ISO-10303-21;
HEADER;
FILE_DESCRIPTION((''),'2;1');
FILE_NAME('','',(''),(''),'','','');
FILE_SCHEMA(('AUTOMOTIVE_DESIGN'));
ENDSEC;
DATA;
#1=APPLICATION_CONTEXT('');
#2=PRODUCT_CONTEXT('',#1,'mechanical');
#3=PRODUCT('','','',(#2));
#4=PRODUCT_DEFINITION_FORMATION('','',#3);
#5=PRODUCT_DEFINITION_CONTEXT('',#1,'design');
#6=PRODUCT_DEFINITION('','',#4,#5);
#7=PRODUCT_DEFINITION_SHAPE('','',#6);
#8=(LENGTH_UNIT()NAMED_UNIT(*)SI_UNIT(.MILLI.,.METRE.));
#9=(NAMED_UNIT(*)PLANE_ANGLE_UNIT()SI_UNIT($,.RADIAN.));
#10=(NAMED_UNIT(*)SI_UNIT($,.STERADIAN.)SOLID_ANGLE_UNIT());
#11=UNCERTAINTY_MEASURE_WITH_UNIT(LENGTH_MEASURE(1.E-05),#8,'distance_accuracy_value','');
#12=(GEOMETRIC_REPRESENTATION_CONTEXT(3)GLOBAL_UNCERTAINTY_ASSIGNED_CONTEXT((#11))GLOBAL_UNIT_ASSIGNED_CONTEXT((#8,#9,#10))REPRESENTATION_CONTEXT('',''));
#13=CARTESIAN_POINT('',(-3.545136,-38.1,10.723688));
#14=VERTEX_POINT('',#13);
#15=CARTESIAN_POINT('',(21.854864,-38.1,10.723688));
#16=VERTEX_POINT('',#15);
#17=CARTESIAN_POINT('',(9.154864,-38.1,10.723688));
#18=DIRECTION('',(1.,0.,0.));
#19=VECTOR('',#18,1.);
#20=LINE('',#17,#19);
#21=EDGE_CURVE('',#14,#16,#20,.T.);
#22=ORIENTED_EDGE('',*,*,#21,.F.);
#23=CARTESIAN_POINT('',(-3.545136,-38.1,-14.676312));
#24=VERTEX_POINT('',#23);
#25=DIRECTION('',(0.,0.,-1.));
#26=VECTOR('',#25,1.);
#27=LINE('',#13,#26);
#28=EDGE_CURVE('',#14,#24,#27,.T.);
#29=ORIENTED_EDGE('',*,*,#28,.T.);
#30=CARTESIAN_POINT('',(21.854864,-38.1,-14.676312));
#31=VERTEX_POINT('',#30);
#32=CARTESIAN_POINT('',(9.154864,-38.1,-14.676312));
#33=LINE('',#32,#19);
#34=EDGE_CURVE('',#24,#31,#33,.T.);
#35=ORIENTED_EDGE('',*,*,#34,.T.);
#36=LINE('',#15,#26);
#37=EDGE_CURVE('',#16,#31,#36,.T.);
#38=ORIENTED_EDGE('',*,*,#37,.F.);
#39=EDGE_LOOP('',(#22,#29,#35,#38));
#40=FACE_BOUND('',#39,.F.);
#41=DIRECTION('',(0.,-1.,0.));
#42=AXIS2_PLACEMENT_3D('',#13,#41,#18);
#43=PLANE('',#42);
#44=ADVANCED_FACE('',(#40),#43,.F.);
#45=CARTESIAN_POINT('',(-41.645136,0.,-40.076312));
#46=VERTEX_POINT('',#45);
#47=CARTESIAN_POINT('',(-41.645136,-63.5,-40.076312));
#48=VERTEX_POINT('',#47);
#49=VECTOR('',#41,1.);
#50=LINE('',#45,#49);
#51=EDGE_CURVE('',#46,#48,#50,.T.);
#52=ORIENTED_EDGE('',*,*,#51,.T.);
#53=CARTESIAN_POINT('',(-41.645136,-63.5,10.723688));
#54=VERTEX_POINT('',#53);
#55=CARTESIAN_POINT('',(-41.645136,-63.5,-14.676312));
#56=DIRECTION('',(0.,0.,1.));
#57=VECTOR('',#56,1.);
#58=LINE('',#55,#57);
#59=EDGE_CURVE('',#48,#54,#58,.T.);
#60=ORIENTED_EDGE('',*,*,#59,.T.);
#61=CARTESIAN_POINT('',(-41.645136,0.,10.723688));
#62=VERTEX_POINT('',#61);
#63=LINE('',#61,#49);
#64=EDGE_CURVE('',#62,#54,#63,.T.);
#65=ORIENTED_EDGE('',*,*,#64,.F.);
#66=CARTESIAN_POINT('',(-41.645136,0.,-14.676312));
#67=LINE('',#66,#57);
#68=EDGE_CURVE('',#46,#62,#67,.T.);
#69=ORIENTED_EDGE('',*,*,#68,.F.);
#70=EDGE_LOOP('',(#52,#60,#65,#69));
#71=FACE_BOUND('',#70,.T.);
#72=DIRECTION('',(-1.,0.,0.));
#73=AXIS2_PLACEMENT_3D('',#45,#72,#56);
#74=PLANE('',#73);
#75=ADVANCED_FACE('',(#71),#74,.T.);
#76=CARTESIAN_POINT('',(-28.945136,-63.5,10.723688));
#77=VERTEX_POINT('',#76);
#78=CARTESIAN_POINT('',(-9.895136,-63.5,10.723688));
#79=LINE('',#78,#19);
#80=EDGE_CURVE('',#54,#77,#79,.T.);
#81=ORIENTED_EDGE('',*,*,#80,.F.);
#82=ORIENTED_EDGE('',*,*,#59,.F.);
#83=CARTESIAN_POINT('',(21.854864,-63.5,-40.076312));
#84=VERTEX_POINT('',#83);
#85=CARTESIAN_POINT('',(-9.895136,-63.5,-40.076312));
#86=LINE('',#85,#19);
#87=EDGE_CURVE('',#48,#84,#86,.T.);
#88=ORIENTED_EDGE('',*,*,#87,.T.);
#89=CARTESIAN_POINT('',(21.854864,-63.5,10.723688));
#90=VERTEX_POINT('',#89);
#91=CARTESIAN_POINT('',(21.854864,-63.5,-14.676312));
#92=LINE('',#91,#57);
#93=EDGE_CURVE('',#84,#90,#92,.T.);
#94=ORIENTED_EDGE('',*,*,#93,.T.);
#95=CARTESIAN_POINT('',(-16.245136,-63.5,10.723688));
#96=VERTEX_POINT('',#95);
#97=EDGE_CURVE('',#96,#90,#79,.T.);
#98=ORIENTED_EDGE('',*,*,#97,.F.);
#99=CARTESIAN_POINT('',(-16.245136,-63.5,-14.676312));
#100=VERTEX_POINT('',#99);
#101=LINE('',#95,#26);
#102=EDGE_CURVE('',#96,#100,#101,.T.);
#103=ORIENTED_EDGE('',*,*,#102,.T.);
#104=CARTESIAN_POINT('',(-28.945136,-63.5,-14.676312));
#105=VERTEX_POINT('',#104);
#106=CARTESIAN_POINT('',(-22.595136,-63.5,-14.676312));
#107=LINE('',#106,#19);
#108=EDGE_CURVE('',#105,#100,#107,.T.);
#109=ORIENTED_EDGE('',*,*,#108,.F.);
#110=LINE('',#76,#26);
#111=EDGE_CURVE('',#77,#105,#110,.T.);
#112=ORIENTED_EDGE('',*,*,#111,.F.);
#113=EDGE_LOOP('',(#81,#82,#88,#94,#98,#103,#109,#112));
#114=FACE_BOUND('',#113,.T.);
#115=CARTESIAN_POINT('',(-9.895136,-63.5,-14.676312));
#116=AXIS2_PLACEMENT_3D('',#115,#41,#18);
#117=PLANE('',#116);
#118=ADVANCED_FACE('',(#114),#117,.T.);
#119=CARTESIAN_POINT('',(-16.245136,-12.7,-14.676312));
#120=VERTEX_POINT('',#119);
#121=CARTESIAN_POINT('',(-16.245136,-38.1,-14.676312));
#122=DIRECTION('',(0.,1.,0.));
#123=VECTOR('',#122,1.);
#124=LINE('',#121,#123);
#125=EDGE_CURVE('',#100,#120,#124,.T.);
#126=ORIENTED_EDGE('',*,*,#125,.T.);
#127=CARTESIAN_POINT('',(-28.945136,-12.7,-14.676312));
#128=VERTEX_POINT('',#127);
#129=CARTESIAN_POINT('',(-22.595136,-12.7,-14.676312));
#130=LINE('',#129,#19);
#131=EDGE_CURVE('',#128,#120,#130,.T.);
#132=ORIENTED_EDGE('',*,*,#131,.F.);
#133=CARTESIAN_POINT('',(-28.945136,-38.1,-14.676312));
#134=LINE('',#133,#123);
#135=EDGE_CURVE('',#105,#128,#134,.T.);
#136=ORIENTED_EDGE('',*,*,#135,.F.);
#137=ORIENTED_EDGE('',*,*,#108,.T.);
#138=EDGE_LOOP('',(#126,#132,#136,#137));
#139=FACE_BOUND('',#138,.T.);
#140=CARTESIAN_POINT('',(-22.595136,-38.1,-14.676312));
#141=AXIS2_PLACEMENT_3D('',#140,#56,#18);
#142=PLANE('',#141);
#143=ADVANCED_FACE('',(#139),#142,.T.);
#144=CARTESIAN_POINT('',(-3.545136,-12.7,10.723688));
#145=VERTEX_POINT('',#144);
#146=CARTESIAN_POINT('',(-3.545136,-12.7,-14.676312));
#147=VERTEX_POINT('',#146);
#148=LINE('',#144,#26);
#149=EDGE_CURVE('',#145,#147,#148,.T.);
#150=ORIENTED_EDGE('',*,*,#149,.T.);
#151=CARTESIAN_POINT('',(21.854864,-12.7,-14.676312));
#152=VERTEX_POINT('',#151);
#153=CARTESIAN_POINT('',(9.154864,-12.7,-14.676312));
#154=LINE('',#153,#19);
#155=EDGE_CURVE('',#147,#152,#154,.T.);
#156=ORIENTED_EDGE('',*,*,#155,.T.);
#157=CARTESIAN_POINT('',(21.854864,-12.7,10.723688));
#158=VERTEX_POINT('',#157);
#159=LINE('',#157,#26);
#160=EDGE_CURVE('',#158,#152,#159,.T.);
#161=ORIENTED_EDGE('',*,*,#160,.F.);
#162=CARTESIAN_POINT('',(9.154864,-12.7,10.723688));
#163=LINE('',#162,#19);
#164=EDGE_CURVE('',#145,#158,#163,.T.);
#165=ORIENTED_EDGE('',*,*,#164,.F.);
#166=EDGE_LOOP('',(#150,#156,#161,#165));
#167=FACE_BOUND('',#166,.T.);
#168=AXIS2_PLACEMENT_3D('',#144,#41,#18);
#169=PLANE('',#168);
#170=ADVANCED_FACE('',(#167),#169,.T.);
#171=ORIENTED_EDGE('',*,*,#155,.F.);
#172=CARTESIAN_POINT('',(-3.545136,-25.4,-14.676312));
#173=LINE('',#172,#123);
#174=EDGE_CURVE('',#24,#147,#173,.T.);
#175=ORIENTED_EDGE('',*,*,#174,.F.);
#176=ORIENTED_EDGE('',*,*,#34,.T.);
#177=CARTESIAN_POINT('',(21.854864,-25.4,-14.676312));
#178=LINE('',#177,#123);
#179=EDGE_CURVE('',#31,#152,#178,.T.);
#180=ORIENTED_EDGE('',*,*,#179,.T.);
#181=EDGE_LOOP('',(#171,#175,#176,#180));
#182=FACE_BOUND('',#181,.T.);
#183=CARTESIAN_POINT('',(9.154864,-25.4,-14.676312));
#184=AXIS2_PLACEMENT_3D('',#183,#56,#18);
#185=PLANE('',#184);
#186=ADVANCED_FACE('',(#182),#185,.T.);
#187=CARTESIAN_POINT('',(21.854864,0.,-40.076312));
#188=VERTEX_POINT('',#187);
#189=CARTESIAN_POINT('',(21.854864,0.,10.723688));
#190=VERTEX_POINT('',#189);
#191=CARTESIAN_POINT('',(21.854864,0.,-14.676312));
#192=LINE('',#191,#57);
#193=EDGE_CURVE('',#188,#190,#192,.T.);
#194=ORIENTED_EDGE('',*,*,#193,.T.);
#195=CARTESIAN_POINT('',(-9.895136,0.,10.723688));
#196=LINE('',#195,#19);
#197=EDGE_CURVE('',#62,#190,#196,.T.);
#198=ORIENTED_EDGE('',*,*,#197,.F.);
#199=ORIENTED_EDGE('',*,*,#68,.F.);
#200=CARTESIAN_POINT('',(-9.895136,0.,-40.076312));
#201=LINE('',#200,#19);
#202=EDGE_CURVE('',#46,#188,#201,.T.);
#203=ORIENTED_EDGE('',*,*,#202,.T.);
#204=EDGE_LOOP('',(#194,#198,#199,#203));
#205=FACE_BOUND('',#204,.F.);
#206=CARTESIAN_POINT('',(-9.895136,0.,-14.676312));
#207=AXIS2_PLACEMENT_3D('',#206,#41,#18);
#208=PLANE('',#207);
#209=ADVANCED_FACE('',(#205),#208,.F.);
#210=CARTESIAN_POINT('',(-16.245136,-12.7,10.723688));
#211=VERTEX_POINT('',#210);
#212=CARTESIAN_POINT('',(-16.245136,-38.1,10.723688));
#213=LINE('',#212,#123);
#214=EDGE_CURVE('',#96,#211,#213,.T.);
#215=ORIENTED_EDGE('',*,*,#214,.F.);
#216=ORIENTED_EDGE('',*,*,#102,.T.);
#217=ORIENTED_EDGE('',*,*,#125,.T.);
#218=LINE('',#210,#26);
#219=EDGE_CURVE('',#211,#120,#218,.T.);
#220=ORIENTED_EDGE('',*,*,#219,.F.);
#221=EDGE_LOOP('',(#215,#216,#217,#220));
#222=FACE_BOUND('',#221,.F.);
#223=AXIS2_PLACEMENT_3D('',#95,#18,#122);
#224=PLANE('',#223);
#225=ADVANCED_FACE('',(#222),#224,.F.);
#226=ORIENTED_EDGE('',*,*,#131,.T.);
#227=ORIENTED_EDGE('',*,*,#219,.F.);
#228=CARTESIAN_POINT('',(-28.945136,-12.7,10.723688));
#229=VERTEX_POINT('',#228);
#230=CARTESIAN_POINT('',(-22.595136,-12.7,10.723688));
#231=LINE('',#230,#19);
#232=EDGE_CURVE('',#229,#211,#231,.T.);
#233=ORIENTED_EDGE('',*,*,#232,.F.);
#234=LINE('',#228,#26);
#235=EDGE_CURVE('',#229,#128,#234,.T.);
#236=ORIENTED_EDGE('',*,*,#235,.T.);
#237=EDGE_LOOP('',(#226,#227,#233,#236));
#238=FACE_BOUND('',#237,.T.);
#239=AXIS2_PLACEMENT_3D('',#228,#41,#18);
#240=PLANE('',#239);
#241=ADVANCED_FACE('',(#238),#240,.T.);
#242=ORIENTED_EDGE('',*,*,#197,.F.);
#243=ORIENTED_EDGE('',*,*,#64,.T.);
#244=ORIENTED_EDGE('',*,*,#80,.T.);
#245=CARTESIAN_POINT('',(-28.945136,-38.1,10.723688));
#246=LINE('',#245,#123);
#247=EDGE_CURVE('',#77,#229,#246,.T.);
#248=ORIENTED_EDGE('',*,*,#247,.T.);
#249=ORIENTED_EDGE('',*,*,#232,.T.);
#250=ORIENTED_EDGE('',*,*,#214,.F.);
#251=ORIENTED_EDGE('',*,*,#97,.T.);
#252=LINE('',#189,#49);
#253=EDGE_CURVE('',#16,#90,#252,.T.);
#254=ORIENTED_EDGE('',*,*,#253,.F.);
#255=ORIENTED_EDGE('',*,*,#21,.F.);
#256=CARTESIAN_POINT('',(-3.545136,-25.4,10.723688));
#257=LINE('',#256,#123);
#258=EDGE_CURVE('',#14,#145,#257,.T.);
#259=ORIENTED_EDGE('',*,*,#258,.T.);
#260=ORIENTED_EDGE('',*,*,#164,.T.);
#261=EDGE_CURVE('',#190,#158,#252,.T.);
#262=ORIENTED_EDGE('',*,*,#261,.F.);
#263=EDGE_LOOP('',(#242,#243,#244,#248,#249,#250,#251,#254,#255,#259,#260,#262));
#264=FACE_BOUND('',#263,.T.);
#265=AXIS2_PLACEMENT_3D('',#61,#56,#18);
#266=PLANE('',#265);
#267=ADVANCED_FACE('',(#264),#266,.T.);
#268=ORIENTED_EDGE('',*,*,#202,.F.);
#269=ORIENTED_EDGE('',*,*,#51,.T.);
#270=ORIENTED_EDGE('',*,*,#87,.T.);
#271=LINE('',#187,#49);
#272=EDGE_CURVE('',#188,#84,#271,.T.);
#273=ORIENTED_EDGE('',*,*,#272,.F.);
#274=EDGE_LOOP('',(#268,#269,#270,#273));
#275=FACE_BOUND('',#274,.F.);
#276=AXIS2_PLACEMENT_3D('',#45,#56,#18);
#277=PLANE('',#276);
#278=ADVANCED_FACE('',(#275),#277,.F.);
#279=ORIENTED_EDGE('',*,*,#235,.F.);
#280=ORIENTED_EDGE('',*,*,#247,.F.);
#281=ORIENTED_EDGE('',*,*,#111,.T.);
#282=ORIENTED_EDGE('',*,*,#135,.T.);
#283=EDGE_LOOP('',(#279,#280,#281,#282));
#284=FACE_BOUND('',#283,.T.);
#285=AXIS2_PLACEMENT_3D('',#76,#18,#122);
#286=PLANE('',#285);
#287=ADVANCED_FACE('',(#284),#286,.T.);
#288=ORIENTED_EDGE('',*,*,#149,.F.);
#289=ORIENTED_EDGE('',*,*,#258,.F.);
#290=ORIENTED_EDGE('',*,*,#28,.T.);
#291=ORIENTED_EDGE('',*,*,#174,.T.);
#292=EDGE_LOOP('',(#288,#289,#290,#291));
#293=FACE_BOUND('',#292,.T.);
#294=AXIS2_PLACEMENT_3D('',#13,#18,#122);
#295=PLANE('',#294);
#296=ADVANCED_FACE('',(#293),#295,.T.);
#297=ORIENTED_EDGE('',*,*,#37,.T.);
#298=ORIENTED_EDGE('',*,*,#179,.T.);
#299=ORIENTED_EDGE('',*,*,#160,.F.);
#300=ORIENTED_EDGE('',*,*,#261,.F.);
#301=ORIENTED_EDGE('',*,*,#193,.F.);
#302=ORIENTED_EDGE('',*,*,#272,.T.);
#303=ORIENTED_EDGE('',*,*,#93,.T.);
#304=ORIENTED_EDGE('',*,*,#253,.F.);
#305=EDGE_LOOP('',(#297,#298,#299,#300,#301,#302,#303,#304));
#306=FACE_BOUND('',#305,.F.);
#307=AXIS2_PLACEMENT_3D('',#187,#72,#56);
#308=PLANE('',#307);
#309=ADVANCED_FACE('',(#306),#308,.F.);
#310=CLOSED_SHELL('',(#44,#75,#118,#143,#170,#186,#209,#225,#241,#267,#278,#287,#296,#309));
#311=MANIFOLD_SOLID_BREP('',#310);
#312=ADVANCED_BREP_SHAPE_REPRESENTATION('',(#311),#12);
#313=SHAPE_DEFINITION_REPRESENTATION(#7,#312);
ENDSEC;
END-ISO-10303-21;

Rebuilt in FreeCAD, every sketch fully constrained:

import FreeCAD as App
import Part
import Sketcher
Q = App.Units.Quantity


def add_polygon(sketch, points):
    """Adds a closed chain of lines whose ends are joined by coincident constraints."""
    first, n = sketch.GeometryCount, len(points)
    for a, b in zip(points, points[1:] + points[:1]):
        sketch.addGeometry(Part.LineSegment(App.Vector(*a, 0), App.Vector(*b, 0)), False)
    for i in range(n):
        sketch.addConstraint(Sketcher.Constraint("Coincident", first + i, 2, first + (i + 1) % n, 1))

doc = App.newDocument("Part")
params = doc.addObject("Spreadsheet::Sheet", "Params")
for row, (alias, value) in enumerate([
    ("sketch1_height", "2 in"),
    ("sketch1_width", "2.5 in"),
    ("pad1_length", "2.5 in"),
    ("sketch2_height", "2 in"),
    ("sketch2_width", "0.5 in"),
    ("pocket1_length", "1 in"),
    ("sketch3_width", "1 in"),
    ("pocket2_length", "1 in"),
], start=1):
    params.set(f"A{row}", alias)
    params.set(f"B{row}", "=" + value)
    params.setAlias(f"B{row}", alias)

body = doc.addObject("PartDesign::Body", "Body")

# Sketch on XZ plane
sketch1 = body.newObject("Sketcher::SketchObject", "Sketch")
sketch1.AttachmentSupport = (doc.getObject("XZ_Plane"), [""])
sketch1.MapMode = "FlatFace"
add_polygon(sketch1, [(-41.645136, 10.723688), (-41.645136, -40.076312), (21.854864, -40.076312), (21.854864, 10.723688)])  # lines 0-3
sketch1.addConstraint(Sketcher.Constraint("Vertical", 0))
sketch1.addConstraint(Sketcher.Constraint("Horizontal", 1))
sketch1.addConstraint(Sketcher.Constraint("Vertical", 2))
sketch1.addConstraint(Sketcher.Constraint("Horizontal", 3))
sketch1.addConstraint(Sketcher.Constraint("DistanceY", 0, 2, 0, 1, Q("2 in")))
sketch1.addConstraint(Sketcher.Constraint("DistanceX", 1, 1, 1, 2, Q("2.5 in")))
sketch1.addConstraint(Sketcher.Constraint("DistanceX", 0, 2, -1, 1, Q("41.645136 mm")))
sketch1.addConstraint(Sketcher.Constraint("DistanceY", 0, 2, -1, 1, Q("40.076312 mm")))
sketch1.setExpression("Constraints[8]", "Params.sketch1_height")
sketch1.setExpression("Constraints[9]", "Params.sketch1_width")
pad1 = body.newObject("PartDesign::Pad", "Pad")
pad1.Profile = sketch1
pad1.setExpression("Length", "Params.pad1_length")

# Sketch on XY plane
sketch2 = body.newObject("Sketcher::SketchObject", "Sketch001")
sketch2.AttachmentSupport = (doc.getObject("XY_Plane"), [""])
sketch2.MapMode = "FlatFace"
sketch2.AttachmentOffset = App.Placement(App.Vector(0, 0, 10.723688), App.Rotation())
add_polygon(sketch2, [(-28.945136, -12.7), (-28.945136, -63.5), (-16.245136, -63.5), (-16.245136, -12.7)])  # lines 0-3
sketch2.addConstraint(Sketcher.Constraint("Vertical", 0))
sketch2.addConstraint(Sketcher.Constraint("Horizontal", 1))
sketch2.addConstraint(Sketcher.Constraint("Vertical", 2))
sketch2.addConstraint(Sketcher.Constraint("Horizontal", 3))
sketch2.addConstraint(Sketcher.Constraint("DistanceY", 0, 2, 0, 1, Q("2 in")))
sketch2.addConstraint(Sketcher.Constraint("DistanceX", 1, 1, 1, 2, Q("0.5 in")))
sketch2.addConstraint(Sketcher.Constraint("DistanceY", 0, 2, -1, 1, Q("2.5 in")))
sketch2.addConstraint(Sketcher.Constraint("DistanceX", 0, 2, -1, 1, Q("28.945136 mm")))
sketch2.setExpression("Constraints[8]", "Params.sketch2_height")
sketch2.setExpression("Constraints[9]", "Params.sketch2_width")
pocket1 = body.newObject("PartDesign::Pocket", "Pocket")
pocket1.Profile = sketch2
pocket1.setExpression("Length", "Params.pocket1_length")

# Sketch on XY plane
sketch3 = body.newObject("Sketcher::SketchObject", "Sketch002")
sketch3.AttachmentSupport = (doc.getObject("XY_Plane"), [""])
sketch3.MapMode = "FlatFace"
sketch3.AttachmentOffset = App.Placement(App.Vector(0, 0, 10.723688), App.Rotation())
add_polygon(sketch3, [(-3.545136, -12.7), (-3.545136, -38.1), (21.854864, -38.1), (21.854864, -12.7)])  # lines 0-3
sketch3.addConstraint(Sketcher.Constraint("Vertical", 0))
sketch3.addConstraint(Sketcher.Constraint("Horizontal", 1))
sketch3.addConstraint(Sketcher.Constraint("Vertical", 2))
sketch3.addConstraint(Sketcher.Constraint("Horizontal", 3))
sketch3.addConstraint(Sketcher.Constraint("Equal", 3, 0))
sketch3.addConstraint(Sketcher.Constraint("DistanceX", 1, 1, 1, 2, Q("1 in")))
sketch3.addConstraint(Sketcher.Constraint("DistanceY", 0, 2, -1, 1, Q("1.5 in")))
sketch3.addConstraint(Sketcher.Constraint("DistanceX", 0, 2, -1, 1, Q("3.545136 mm")))
sketch3.setExpression("Constraints[9]", "Params.sketch3_width")
pocket2 = body.newObject("PartDesign::Pocket", "Pocket001")
pocket2.Profile = sketch3
pocket2.setExpression("Length", "Params.pocket2_length")

doc.recompute()
